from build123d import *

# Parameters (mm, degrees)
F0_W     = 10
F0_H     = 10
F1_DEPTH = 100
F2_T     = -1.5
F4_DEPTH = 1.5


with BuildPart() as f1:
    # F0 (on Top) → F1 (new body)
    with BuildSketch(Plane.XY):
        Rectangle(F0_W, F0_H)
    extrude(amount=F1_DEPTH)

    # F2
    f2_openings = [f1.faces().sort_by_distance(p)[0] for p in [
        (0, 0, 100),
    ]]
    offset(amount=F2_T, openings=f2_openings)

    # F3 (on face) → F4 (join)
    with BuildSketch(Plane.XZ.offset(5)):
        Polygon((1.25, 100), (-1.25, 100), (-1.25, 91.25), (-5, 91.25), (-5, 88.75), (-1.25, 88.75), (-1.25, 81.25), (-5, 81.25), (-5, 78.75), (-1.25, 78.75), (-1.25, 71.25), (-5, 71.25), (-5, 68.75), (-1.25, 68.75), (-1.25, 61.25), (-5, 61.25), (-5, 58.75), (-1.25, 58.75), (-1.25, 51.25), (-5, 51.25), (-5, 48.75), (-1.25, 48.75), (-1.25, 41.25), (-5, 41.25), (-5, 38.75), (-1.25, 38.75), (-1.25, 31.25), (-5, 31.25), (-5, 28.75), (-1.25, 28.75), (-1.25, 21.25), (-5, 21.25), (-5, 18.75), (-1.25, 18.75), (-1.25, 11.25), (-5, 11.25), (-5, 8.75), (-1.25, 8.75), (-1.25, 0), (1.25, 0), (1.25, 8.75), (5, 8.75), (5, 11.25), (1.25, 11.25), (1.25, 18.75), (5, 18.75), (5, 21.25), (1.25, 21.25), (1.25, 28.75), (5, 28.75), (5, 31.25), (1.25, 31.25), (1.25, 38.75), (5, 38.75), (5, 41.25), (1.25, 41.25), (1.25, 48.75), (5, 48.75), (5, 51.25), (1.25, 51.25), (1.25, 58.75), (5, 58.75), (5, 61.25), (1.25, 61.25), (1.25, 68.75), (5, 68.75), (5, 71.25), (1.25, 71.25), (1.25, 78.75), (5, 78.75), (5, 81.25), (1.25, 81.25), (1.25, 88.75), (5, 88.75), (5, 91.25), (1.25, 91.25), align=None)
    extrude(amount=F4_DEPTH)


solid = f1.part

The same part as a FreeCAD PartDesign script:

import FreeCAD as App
import Part
import Sketcher

V = App.Vector
Q = App.Units.Quantity


def faces_at(feature, points):
    """Names of the faces that lie closest to the given points."""
    faces = feature.Shape.Faces
    near = lambda p: min(range(len(faces)), key=lambda i: faces[i].distToShape(Part.Vertex(*p))[0])
    return sorted({f"Face{near(p) + 1}" for p in points})

doc = App.newDocument("Part")
params = doc.addObject("Spreadsheet::Sheet", "Params")
for row, (alias, value) in enumerate([
    ("sketch1_width", "10 mm"),
    ("pad1_length", "100 mm"),
    ("thickness_wall", "1.5 mm"),
    ("sketch2_width", "2.5 mm"),
    ("sketch2_height", "7.5 mm"),
    ("pad2_length", "1.5 mm"),
], start=1):
    params.set(f"A{row}", alias)
    params.set(f"B{row}", "=" + value)
    params.setAlias(f"B{row}", alias)

body = doc.addObject("PartDesign::Body", "Body")

sketch1 = doc.addObject("Sketcher::SketchObject", "Sketch")
body.addObject(sketch1)
sketch1.AttachmentSupport = (doc.XY_Plane, [""])
sketch1.MapMode = "FlatFace"
sketch1.addGeometry([
    Part.LineSegment(V(-5, 5, 0), V(-5, -5, 0)),
    Part.LineSegment(V(-5, -5, 0), V(5, -5, 0)),
    Part.LineSegment(V(5, -5, 0), V(5, 5, 0)),
    Part.LineSegment(V(5, 5, 0), V(-5, 5, 0)),
], False)
sketch1.addConstraint([
    Sketcher.Constraint("Coincident", 0, 2, 1, 1),
    Sketcher.Constraint("Coincident", 1, 2, 2, 1),
    Sketcher.Constraint("Coincident", 2, 2, 3, 1),
    Sketcher.Constraint("Coincident", 3, 2, 0, 1),
    Sketcher.Constraint("Vertical", 0),
    Sketcher.Constraint("Horizontal", 1),
    Sketcher.Constraint("Vertical", 2),
    Sketcher.Constraint("Horizontal", 3),
    Sketcher.Constraint("Symmetric", 0, 2, 2, 2, -1, 1),
    Sketcher.Constraint("Equal", 3, 0),
    Sketcher.Constraint("DistanceX", 1, 1, 1, 2, Q("10 mm")),
])
sketch1.setExpression("Constraints[10]", "Params.sketch1_width")
pad1 = doc.addObject("PartDesign::Pad", "Pad")
body.addObject(pad1)
pad1.Profile = sketch1
pad1.setExpression("Length", "Params.pad1_length")
doc.recompute()

thickness = doc.addObject("PartDesign::Thickness", "Thickness")
body.addObject(thickness)
thickness.Base = (pad1, faces_at(pad1, [(0, 0, 100)]))
thickness.setExpression("Value", "Params.thickness_wall")
thickness.Reversed = True
thickness.Join = "Arc"

sketch2 = doc.addObject("Sketcher::SketchObject", "Sketch001")
body.addObject(sketch2)
sketch2.AttachmentSupport = (doc.XZ_Plane, [""])
sketch2.MapMode = "FlatFace"
sketch2.AttachmentOffset = App.Placement(V(0, 0, 5), App.Rotation())
sketch2.addGeometry([
    Part.LineSegment(V(1.25, 100, 0), V(-1.25, 100, 0)),
    Part.LineSegment(V(-1.25, 100, 0), V(-1.25, 91.25, 0)),
    Part.LineSegment(V(-1.25, 91.25, 0), V(-5, 91.25, 0)),
    Part.LineSegment(V(-5, 91.25, 0), V(-5, 88.75, 0)),
    Part.LineSegment(V(-5, 88.75, 0), V(-1.25, 88.75, 0)),
    Part.LineSegment(V(-1.25, 88.75, 0), V(-1.25, 81.25, 0)),
    Part.LineSegment(V(-1.25, 81.25, 0), V(-5, 81.25, 0)),
    Part.LineSegment(V(-5, 81.25, 0), V(-5, 78.75, 0)),
    Part.LineSegment(V(-5, 78.75, 0), V(-1.25, 78.75, 0)),
    Part.LineSegment(V(-1.25, 78.75, 0), V(-1.25, 71.25, 0)),
    Part.LineSegment(V(-1.25, 71.25, 0), V(-5, 71.25, 0)),
    Part.LineSegment(V(-5, 71.25, 0), V(-5, 68.75, 0)),
    Part.LineSegment(V(-5, 68.75, 0), V(-1.25, 68.75, 0)),
    Part.LineSegment(V(-1.25, 68.75, 0), V(-1.25, 61.25, 0)),
    Part.LineSegment(V(-1.25, 61.25, 0), V(-5, 61.25, 0)),
    Part.LineSegment(V(-5, 61.25, 0), V(-5, 58.75, 0)),
    Part.LineSegment(V(-5, 58.75, 0), V(-1.25, 58.75, 0)),
    Part.LineSegment(V(-1.25, 58.75, 0), V(-1.25, 51.25, 0)),
    Part.LineSegment(V(-1.25, 51.25, 0), V(-5, 51.25, 0)),
    Part.LineSegment(V(-5, 51.25, 0), V(-5, 48.75, 0)),
    Part.LineSegment(V(-5, 48.75, 0), V(-1.25, 48.75, 0)),
    Part.LineSegment(V(-1.25, 48.75, 0), V(-1.25, 41.25, 0)),
    Part.LineSegment(V(-1.25, 41.25, 0), V(-5, 41.25, 0)),
    Part.LineSegment(V(-5, 41.25, 0), V(-5, 38.75, 0)),
    Part.LineSegment(V(-5, 38.75, 0), V(-1.25, 38.75, 0)),
    Part.LineSegment(V(-1.25, 38.75, 0), V(-1.25, 31.25, 0)),
    Part.LineSegment(V(-1.25, 31.25, 0), V(-5, 31.25, 0)),
    Part.LineSegment(V(-5, 31.25, 0), V(-5, 28.75, 0)),
    Part.LineSegment(V(-5, 28.75, 0), V(-1.25, 28.75, 0)),
    Part.LineSegment(V(-1.25, 28.75, 0), V(-1.25, 21.25, 0)),
    Part.LineSegment(V(-1.25, 21.25, 0), V(-5, 21.25, 0)),
    Part.LineSegment(V(-5, 21.25, 0), V(-5, 18.75, 0)),
    Part.LineSegment(V(-5, 18.75, 0), V(-1.25, 18.75, 0)),
    Part.LineSegment(V(-1.25, 18.75, 0), V(-1.25, 11.25, 0)),
    Part.LineSegment(V(-1.25, 11.25, 0), V(-5, 11.25, 0)),
    Part.LineSegment(V(-5, 11.25, 0), V(-5, 8.75, 0)),
    Part.LineSegment(V(-5, 8.75, 0), V(-1.25, 8.75, 0)),
    Part.LineSegment(V(-1.25, 8.75, 0), V(-1.25, 0, 0)),
    Part.LineSegment(V(-1.25, 0, 0), V(1.25, 0, 0)),
    Part.LineSegment(V(1.25, 0, 0), V(1.25, 8.75, 0)),
    Part.LineSegment(V(1.25, 8.75, 0), V(5, 8.75, 0)),
    Part.LineSegment(V(5, 8.75, 0), V(5, 11.25, 0)),
    Part.LineSegment(V(5, 11.25, 0), V(1.25, 11.25, 0)),
    Part.LineSegment(V(1.25, 11.25, 0), V(1.25, 18.75, 0)),
    Part.LineSegment(V(1.25, 18.75, 0), V(5, 18.75, 0)),
    Part.LineSegment(V(5, 18.75, 0), V(5, 21.25, 0)),
    Part.LineSegment(V(5, 21.25, 0), V(1.25, 21.25, 0)),
    Part.LineSegment(V(1.25, 21.25, 0), V(1.25, 28.75, 0)),
    Part.LineSegment(V(1.25, 28.75, 0), V(5, 28.75, 0)),
    Part.LineSegment(V(5, 28.75, 0), V(5, 31.25, 0)),
    Part.LineSegment(V(5, 31.25, 0), V(1.25, 31.25, 0)),
    Part.LineSegment(V(1.25, 31.25, 0), V(1.25, 38.75, 0)),
    Part.LineSegment(V(1.25, 38.75, 0), V(5, 38.75, 0)),
    Part.LineSegment(V(5, 38.75, 0), V(5, 41.25, 0)),
    Part.LineSegment(V(5, 41.25, 0), V(1.25, 41.25, 0)),
    Part.LineSegment(V(1.25, 41.25, 0), V(1.25, 48.75, 0)),
    Part.LineSegment(V(1.25, 48.75, 0), V(5, 48.75, 0)),
    Part.LineSegment(V(5, 48.75, 0), V(5, 51.25, 0)),
    Part.LineSegment(V(5, 51.25, 0), V(1.25, 51.25, 0)),
    Part.LineSegment(V(1.25, 51.25, 0), V(1.25, 58.75, 0)),
    Part.LineSegment(V(1.25, 58.75, 0), V(5, 58.75, 0)),
    Part.LineSegment(V(5, 58.75, 0), V(5, 61.25, 0)),
    Part.LineSegment(V(5, 61.25, 0), V(1.25, 61.25, 0)),
    Part.LineSegment(V(1.25, 61.25, 0), V(1.25, 68.75, 0)),
    Part.LineSegment(V(1.25, 68.75, 0), V(5, 68.75, 0)),
    Part.LineSegment(V(5, 68.75, 0), V(5, 71.25, 0)),
    Part.LineSegment(V(5, 71.25, 0), V(1.25, 71.25, 0)),
    Part.LineSegment(V(1.25, 71.25, 0), V(1.25, 78.75, 0)),
    Part.LineSegment(V(1.25, 78.75, 0), V(5, 78.75, 0)),
    Part.LineSegment(V(5, 78.75, 0), V(5, 81.25, 0)),
    Part.LineSegment(V(5, 81.25, 0), V(1.25, 81.25, 0)),
    Part.LineSegment(V(1.25, 81.25, 0), V(1.25, 88.75, 0)),
    Part.LineSegment(V(1.25, 88.75, 0), V(5, 88.75, 0)),
    Part.LineSegment(V(5, 88.75, 0), V(5, 91.25, 0)),
    Part.LineSegment(V(5, 91.25, 0), V(1.25, 91.25, 0)),
    Part.LineSegment(V(1.25, 91.25, 0), V(1.25, 100, 0)),
], False)
sketch2.addConstraint([
    Sketcher.Constraint("Coincident", 0, 2, 1, 1),
    Sketcher.Constraint("Coincident", 1, 2, 2, 1),
    Sketcher.Constraint("Coincident", 2, 2, 3, 1),
    Sketcher.Constraint("Coincident", 3, 2, 4, 1),
    Sketcher.Constraint("Coincident", 4, 2, 5, 1),
    Sketcher.Constraint("Coincident", 5, 2, 6, 1),
    Sketcher.Constraint("Coincident", 6, 2, 7, 1),
    Sketcher.Constraint("Coincident", 7, 2, 8, 1),
    Sketcher.Constraint("Coincident", 8, 2, 9, 1),
    Sketcher.Constraint("Coincident", 9, 2, 10, 1),
    Sketcher.Constraint("Coincident", 10, 2, 11, 1),
    Sketcher.Constraint("Coincident", 11, 2, 12, 1),
    Sketcher.Constraint("Coincident", 12, 2, 13, 1),
    Sketcher.Constraint("Coincident", 13, 2, 14, 1),
    Sketcher.Constraint("Coincident", 14, 2, 15, 1),
    Sketcher.Constraint("Coincident", 15, 2, 16, 1),
    Sketcher.Constraint("Coincident", 16, 2, 17, 1),
    Sketcher.Constraint("Coincident", 17, 2, 18, 1),
    Sketcher.Constraint("Coincident", 18, 2, 19, 1),
    Sketcher.Constraint("Coincident", 19, 2, 20, 1),
    Sketcher.Constraint("Coincident", 20, 2, 21, 1),
    Sketcher.Constraint("Coincident", 21, 2, 22, 1),
    Sketcher.Constraint("Coincident", 22, 2, 23, 1),
    Sketcher.Constraint("Coincident", 23, 2, 24, 1),
    Sketcher.Constraint("Coincident", 24, 2, 25, 1),
    Sketcher.Constraint("Coincident", 25, 2, 26, 1),
    Sketcher.Constraint("Coincident", 26, 2, 27, 1),
    Sketcher.Constraint("Coincident", 27, 2, 28, 1),
    Sketcher.Constraint("Coincident", 28, 2, 29, 1),
    Sketcher.Constraint("Coincident", 29, 2, 30, 1),
    Sketcher.Constraint("Coincident", 30, 2, 31, 1),
    Sketcher.Constraint("Coincident", 31, 2, 32, 1),
    Sketcher.Constraint("Coincident", 32, 2, 33, 1),
    Sketcher.Constraint("Coincident", 33, 2, 34, 1),
    Sketcher.Constraint("Coincident", 34, 2, 35, 1),
    Sketcher.Constraint("Coincident", 35, 2, 36, 1),
    Sketcher.Constraint("Coincident", 36, 2, 37, 1),
    Sketcher.Constraint("Coincident", 37, 2, 38, 1),
    Sketcher.Constraint("Coincident", 38, 2, 39, 1),
    Sketcher.Constraint("Coincident", 39, 2, 40, 1),
    Sketcher.Constraint("Coincident", 40, 2, 41, 1),
    Sketcher.Constraint("Coincident", 41, 2, 42, 1),
    Sketcher.Constraint("Coincident", 42, 2, 43, 1),
    Sketcher.Constraint("Coincident", 43, 2, 44, 1),
    Sketcher.Constraint("Coincident", 44, 2, 45, 1),
    Sketcher.Constraint("Coincident", 45, 2, 46, 1),
    Sketcher.Constraint("Coincident", 46, 2, 47, 1),
    Sketcher.Constraint("Coincident", 47, 2, 48, 1),
    Sketcher.Constraint("Coincident", 48, 2, 49, 1),
    Sketcher.Constraint("Coincident", 49, 2, 50, 1),
    Sketcher.Constraint("Coincident", 50, 2, 51, 1),
    Sketcher.Constraint("Coincident", 51, 2, 52, 1),
    Sketcher.Constraint("Coincident", 52, 2, 53, 1),
    Sketcher.Constraint("Coincident", 53, 2, 54, 1),
    Sketcher.Constraint("Coincident", 54, 2, 55, 1),
    Sketcher.Constraint("Coincident", 55, 2, 56, 1),
    Sketcher.Constraint("Coincident", 56, 2, 57, 1),
    Sketcher.Constraint("Coincident", 57, 2, 58, 1),
    Sketcher.Constraint("Coincident", 58, 2, 59, 1),
    Sketcher.Constraint("Coincident", 59, 2, 60, 1),
    Sketcher.Constraint("Coincident", 60, 2, 61, 1),
    Sketcher.Constraint("Coincident", 61, 2, 62, 1),
    Sketcher.Constraint("Coincident", 62, 2, 63, 1),
    Sketcher.Constraint("Coincident", 63, 2, 64, 1),
    Sketcher.Constraint("Coincident", 64, 2, 65, 1),
    Sketcher.Constraint("Coincident", 65, 2, 66, 1),
    Sketcher.Constraint("Coincident", 66, 2, 67, 1),
    Sketcher.Constraint("Coincident", 67, 2, 68, 1),
    Sketcher.Constraint("Coincident", 68, 2, 69, 1),
    Sketcher.Constraint("Coincident", 69, 2, 70, 1),
    Sketcher.Constraint("Coincident", 70, 2, 71, 1),
    Sketcher.Constraint("Coincident", 71, 2, 72, 1),
    Sketcher.Constraint("Coincident", 72, 2, 73, 1),
    Sketcher.Constraint("Coincident", 73, 2, 74, 1),
    Sketcher.Constraint("Coincident", 74, 2, 75, 1),
    Sketcher.Constraint("Coincident", 75, 2, 0, 1),
    Sketcher.Constraint("Horizontal", 0),
    Sketcher.Constraint("Vertical", 1),
    Sketcher.Constraint("Horizontal", 2),
    Sketcher.Constraint("Vertical", 3),
    Sketcher.Constraint("Horizontal", 4),
    Sketcher.Constraint("Vertical", 5),
    Sketcher.Constraint("Horizontal", 6),
    Sketcher.Constraint("Vertical", 7),
    Sketcher.Constraint("Horizontal", 8),
    Sketcher.Constraint("Vertical", 9),
    Sketcher.Constraint("Horizontal", 10),
    Sketcher.Constraint("Vertical", 11),
    Sketcher.Constraint("Horizontal", 12),
    Sketcher.Constraint("Vertical", 13),
    Sketcher.Constraint("Horizontal", 14),
    Sketcher.Constraint("Vertical", 15),
    Sketcher.Constraint("Horizontal", 16),
    Sketcher.Constraint("Vertical", 17),
    Sketcher.Constraint("Horizontal", 18),
    Sketcher.Constraint("Vertical", 19),
    Sketcher.Constraint("Horizontal", 20),
    Sketcher.Constraint("Vertical", 21),
    Sketcher.Constraint("Horizontal", 22),
    Sketcher.Constraint("Vertical", 23),
    Sketcher.Constraint("Horizontal", 24),
    Sketcher.Constraint("Vertical", 25),
    Sketcher.Constraint("Horizontal", 26),
    Sketcher.Constraint("Vertical", 27),
    Sketcher.Constraint("Horizontal", 28),
    Sketcher.Constraint("Vertical", 29),
    Sketcher.Constraint("Horizontal", 30),
    Sketcher.Constraint("Vertical", 31),
    Sketcher.Constraint("Horizontal", 32),
    Sketcher.Constraint("Vertical", 33),
    Sketcher.Constraint("Horizontal", 34),
    Sketcher.Constraint("Vertical", 35),
    Sketcher.Constraint("Horizontal", 36),
    Sketcher.Constraint("Vertical", 37),
    Sketcher.Constraint("Horizontal", 38),
    Sketcher.Constraint("Vertical", 39),
    Sketcher.Constraint("Horizontal", 40),
    Sketcher.Constraint("Vertical", 41),
    Sketcher.Constraint("Horizontal", 42),
    Sketcher.Constraint("Vertical", 43),
    Sketcher.Constraint("Horizontal", 44),
    Sketcher.Constraint("Vertical", 45),
    Sketcher.Constraint("Horizontal", 46),
    Sketcher.Constraint("Vertical", 47),
    Sketcher.Constraint("Horizontal", 48),
    Sketcher.Constraint("Vertical", 49),
    Sketcher.Constraint("Horizontal", 50),
    Sketcher.Constraint("Vertical", 51),
    Sketcher.Constraint("Horizontal", 52),
    Sketcher.Constraint("Vertical", 53),
    Sketcher.Constraint("Horizontal", 54),
    Sketcher.Constraint("Vertical", 55),
    Sketcher.Constraint("Horizontal", 56),
    Sketcher.Constraint("Vertical", 57),
    Sketcher.Constraint("Horizontal", 58),
    Sketcher.Constraint("Vertical", 59),
    Sketcher.Constraint("Horizontal", 60),
    Sketcher.Constraint("Vertical", 61),
    Sketcher.Constraint("Horizontal", 62),
    Sketcher.Constraint("Vertical", 63),
    Sketcher.Constraint("Horizontal", 64),
    Sketcher.Constraint("Vertical", 65),
    Sketcher.Constraint("Horizontal", 66),
    Sketcher.Constraint("Vertical", 67),
    Sketcher.Constraint("Horizontal", 68),
    Sketcher.Constraint("Vertical", 69),
    Sketcher.Constraint("Horizontal", 70),
    Sketcher.Constraint("Vertical", 71),
    Sketcher.Constraint("Horizontal", 72),
    Sketcher.Constraint("Vertical", 73),
    Sketcher.Constraint("Horizontal", 74),
    Sketcher.Constraint("Vertical", 75),
    Sketcher.Constraint("Symmetric", 37, 2, 38, 2, -1, 1),
    Sketcher.Constraint("Symmetric", 35, 2, 40, 2, -2),
    Sketcher.Constraint("Symmetric", 33, 2, 42, 2, -2),
    Sketcher.Constraint("Symmetric", 31, 2, 44, 2, -2),
    Sketcher.Constraint("Symmetric", 29, 2, 46, 2, -2),
    Sketcher.Constraint("Symmetric", 27, 2, 48, 2, -2),
    Sketcher.Constraint("Symmetric", 25, 2, 50, 2, -2),
    Sketcher.Constraint("Symmetric", 23, 2, 52, 2, -2),
    Sketcher.Constraint("Symmetric", 21, 2, 54, 2, -2),
    Sketcher.Constraint("Symmetric", 19, 2, 56, 2, -2),
    Sketcher.Constraint("Symmetric", 17, 2, 58, 2, -2),
    Sketcher.Constraint("Symmetric", 15, 2, 60, 2, -2),
    Sketcher.Constraint("Symmetric", 13, 2, 62, 2, -2),
    Sketcher.Constraint("Symmetric", 11, 2, 64, 2, -2),
    Sketcher.Constraint("Symmetric", 9, 2, 66, 2, -2),
    Sketcher.Constraint("Symmetric", 7, 2, 68, 2, -2),
    Sketcher.Constraint("Symmetric", 5, 2, 70, 2, -2),
    Sketcher.Constraint("Symmetric", 3, 2, 72, 2, -2),
    Sketcher.Constraint("Symmetric", 1, 2, 74, 2, -2),
    Sketcher.Constraint("Vertical", 1, 2, 4, 2),
    Sketcher.Constraint("Vertical", 3, 2, 6, 2),
    Sketcher.Constraint("Vertical", 5, 2, 8, 2),
    Sketcher.Constraint("Vertical", 7, 2, 10, 2),
    Sketcher.Constraint("Vertical", 9, 2, 12, 2),
    Sketcher.Constraint("Vertical", 11, 2, 14, 2),
    Sketcher.Constraint("Vertical", 13, 2, 16, 2),
    Sketcher.Constraint("Vertical", 15, 2, 18, 2),
    Sketcher.Constraint("Vertical", 17, 2, 20, 2),
    Sketcher.Constraint("Vertical", 19, 2, 22, 2),
    Sketcher.Constraint("Vertical", 21, 2, 24, 2),
    Sketcher.Constraint("Vertical", 23, 2, 26, 2),
    Sketcher.Constraint("Vertical", 25, 2, 28, 2),
    Sketcher.Constraint("Vertical", 27, 2, 30, 2),
    Sketcher.Constraint("Vertical", 29, 2, 32, 2),
    Sketcher.Constraint("Vertical", 31, 2, 34, 2),
    Sketcher.Constraint("Vertical", 33, 2, 36, 2),
    Sketcher.Constraint("Equal", 38, 3),
    Sketcher.Constraint("Equal", 3, 7),
    Sketcher.Constraint("Equal", 5, 9),
    Sketcher.Constraint("Equal", 7, 11),
    Sketcher.Constraint("Equal", 9, 13),
    Sketcher.Constraint("Equal", 11, 15),
    Sketcher.Constraint("Equal", 13, 17),
    Sketcher.Constraint("Equal", 15, 19),
    Sketcher.Constraint("Equal", 17, 21),
    Sketcher.Constraint("Equal", 19, 23),
    Sketcher.Constraint("Equal", 21, 25),
    Sketcher.Constraint("Equal", 23, 27),
    Sketcher.Constraint("Equal", 25, 29),
    Sketcher.Constraint("Equal", 27, 31),
    Sketcher.Constraint("Equal", 29, 33),
    Sketcher.Constraint("Equal", 31, 35),
    Sketcher.Constraint("Equal", 1, 37),
    Sketcher.Constraint("DistanceX", 0, 2, 0, 1, Q("2.5 mm")),
    Sketcher.Constraint("DistanceY", 5, 2, 5, 1, Q("7.5 mm")),
    Sketcher.Constraint("DistanceY", -1, 1, 0, 2, Q("100 mm")),
    Sketcher.Constraint("DistanceX", 2, 2, -1, 1, Q("5 mm")),
])
sketch2.setExpression("Constraints[205]", "Params.sketch2_width")
sketch2.setExpression("Constraints[206]", "Params.sketch2_height")
pad2 = doc.addObject("PartDesign::Pad", "Pad001")
body.addObject(pad2)
pad2.Profile = sketch2
pad2.setExpression("Length", "Params.pad2_length")

doc.recompute()
